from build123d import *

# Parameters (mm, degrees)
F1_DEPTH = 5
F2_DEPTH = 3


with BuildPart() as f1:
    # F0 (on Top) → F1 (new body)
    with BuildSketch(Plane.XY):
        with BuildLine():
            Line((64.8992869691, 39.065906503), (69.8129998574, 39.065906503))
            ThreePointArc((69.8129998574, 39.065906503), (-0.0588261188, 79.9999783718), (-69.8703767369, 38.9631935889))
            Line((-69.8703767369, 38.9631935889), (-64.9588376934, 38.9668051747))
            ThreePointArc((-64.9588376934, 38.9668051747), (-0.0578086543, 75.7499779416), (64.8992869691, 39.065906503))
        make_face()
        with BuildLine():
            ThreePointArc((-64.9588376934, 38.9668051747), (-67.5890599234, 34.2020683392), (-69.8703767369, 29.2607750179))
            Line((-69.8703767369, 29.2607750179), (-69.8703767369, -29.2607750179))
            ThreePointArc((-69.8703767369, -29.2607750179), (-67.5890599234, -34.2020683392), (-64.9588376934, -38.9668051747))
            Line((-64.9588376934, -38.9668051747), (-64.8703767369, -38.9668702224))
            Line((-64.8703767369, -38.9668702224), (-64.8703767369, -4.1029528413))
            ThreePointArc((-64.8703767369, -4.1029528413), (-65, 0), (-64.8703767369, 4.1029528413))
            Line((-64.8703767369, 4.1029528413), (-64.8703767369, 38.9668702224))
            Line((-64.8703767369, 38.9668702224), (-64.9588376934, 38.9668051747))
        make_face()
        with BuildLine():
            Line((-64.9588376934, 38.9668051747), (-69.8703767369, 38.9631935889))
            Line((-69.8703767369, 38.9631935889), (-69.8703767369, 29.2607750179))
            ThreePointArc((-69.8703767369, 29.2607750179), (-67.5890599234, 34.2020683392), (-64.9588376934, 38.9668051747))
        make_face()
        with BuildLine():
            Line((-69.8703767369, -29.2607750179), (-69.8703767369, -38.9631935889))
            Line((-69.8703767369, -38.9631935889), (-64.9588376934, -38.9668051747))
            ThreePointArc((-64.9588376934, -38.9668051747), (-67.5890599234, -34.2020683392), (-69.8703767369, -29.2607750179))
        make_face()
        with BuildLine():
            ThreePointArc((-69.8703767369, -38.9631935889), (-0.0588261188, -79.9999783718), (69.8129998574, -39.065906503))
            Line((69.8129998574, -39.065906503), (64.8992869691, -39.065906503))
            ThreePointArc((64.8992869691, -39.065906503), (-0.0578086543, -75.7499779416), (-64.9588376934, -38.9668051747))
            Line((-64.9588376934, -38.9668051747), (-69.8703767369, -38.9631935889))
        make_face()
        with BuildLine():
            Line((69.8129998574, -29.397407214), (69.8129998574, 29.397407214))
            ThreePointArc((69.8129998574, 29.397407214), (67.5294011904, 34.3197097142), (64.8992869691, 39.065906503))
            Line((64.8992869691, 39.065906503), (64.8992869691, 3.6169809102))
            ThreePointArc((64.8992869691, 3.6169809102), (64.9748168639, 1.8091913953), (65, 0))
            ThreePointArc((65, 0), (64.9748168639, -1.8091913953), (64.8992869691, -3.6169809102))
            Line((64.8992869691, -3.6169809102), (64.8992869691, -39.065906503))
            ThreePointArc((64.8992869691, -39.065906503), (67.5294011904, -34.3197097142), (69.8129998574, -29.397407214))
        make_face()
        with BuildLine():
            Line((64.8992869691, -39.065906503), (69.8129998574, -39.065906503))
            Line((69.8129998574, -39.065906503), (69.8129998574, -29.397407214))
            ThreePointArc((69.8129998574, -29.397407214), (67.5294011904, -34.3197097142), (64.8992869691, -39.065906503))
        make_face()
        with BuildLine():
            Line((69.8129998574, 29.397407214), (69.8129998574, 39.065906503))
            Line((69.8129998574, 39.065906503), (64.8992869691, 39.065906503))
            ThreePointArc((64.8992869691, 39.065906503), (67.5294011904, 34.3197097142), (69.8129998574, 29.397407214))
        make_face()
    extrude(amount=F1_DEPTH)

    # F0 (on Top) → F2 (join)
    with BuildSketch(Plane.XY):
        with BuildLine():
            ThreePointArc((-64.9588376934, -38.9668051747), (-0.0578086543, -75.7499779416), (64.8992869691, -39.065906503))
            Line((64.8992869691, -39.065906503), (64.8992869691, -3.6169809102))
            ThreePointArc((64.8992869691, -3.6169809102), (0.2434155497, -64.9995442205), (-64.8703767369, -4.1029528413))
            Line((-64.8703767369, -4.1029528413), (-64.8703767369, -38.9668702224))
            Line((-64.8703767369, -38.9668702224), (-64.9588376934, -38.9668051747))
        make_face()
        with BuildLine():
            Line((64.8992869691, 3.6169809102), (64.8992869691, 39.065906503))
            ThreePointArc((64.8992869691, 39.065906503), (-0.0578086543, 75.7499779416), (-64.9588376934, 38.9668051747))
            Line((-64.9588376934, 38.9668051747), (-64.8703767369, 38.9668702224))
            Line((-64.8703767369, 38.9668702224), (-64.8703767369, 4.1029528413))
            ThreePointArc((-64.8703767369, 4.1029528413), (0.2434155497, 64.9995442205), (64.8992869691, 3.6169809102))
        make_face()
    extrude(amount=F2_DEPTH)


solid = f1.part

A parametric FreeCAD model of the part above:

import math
import FreeCAD as App
import Part
import Sketcher
from FreeCAD import Vector

doc = App.newDocument("Part")
body = doc.addObject("PartDesign::Body", "Body")

sketch1 = body.newObject("Sketcher::SketchObject", "Sketch")
sketch1.AttachmentSupport = (doc.getObject("XY_Plane"), [""])
sketch1.MapMode = "FlatFace"
sketch1.addGeometry([
    Part.LineSegment(Vector(69.813, -39.065907, 0), Vector(69.813, 39.065907, 0)),
    Part.ArcOfCircle(Part.Circle(Vector(0, 0, 0), Vector(0, 0, 1), 80), math.radians(29.230471), math.radians(150.853791)),
    Part.LineSegment(Vector(-69.870377, 38.963194, 0), Vector(-69.870377, -38.963194, 0)),
    Part.ArcOfCircle(Part.Circle(Vector(0, 0, 0), Vector(0, 0, 1), 80), math.radians(-150.853791), math.radians(-29.230471)),
    Part.ArcOfCircle(Part.Circle(Vector(0, 0, 0), Vector(0, 0, 1), 75.75), math.radians(31.045696), math.radians(149.041755)),
    Part.LineSegment(Vector(64.899287, 39.065907, 0), Vector(64.899287, 3.616981, 0)),
    Part.ArcOfCircle(Part.Circle(Vector(0, 0, 0), Vector(0, 0, 1), 65), math.radians(0), math.radians(3.189921)),
    Part.ArcOfCircle(Part.Circle(Vector(0, 0, 0), Vector(0, 0, 1), 65), math.radians(-3.189921), math.radians(0)),
    Part.LineSegment(Vector(64.899287, -3.616981, 0), Vector(64.899287, -39.065907, 0)),
    Part.ArcOfCircle(Part.Circle(Vector(0, 0, 0), Vector(0, 0, 1), 75.75), math.radians(-149.041755), math.radians(-31.045696)),
    Part.LineSegment(Vector(-64.958838, -38.966805, 0), Vector(-64.870377, -38.96687, 0)),
    Part.LineSegment(Vector(-64.870377, -38.96687, 0), Vector(-64.870377, -4.102953, 0)),
    Part.ArcOfCircle(Part.Circle(Vector(0, 0, 0), Vector(0, 0, 1), 65), math.radians(176.38095), math.radians(183.61905)),
    Part.LineSegment(Vector(-64.870377, 4.102953, 0), Vector(-64.870377, 38.96687, 0)),
    Part.LineSegment(Vector(-64.870377, 38.96687, 0), Vector(-64.958838, 38.966805, 0)),
], False)
sketch1.addConstraint([
    Sketcher.Constraint("Coincident", 0, 2, 1, 1),
    Sketcher.Constraint("Coincident", 1, 2, 2, 1),
    Sketcher.Constraint("Coincident", 2, 2, 3, 1),
    Sketcher.Constraint("Coincident", 3, 2, 0, 1),
    Sketcher.Constraint("Coincident", 4, 1, 5, 1),
    Sketcher.Constraint("Coincident", 5, 2, 6, 2),
    Sketcher.Constraint("Tangent", 6, 1, 7, 2),
    Sketcher.Constraint("Coincident", 7, 1, 8, 1),
    Sketcher.Constraint("Coincident", 8, 2, 9, 2),
    Sketcher.Constraint("Coincident", 9, 1, 10, 1),
    Sketcher.Constraint("Coincident", 10, 2, 11, 1),
    Sketcher.Constraint("Coincident", 11, 2, 12, 2),
    Sketcher.Constraint("Coincident", 12, 1, 13, 1),
    Sketcher.Constraint("Coincident", 13, 2, 14, 1),
    Sketcher.Constraint("Coincident", 14, 2, 4, 2),
    Sketcher.Constraint("Vertical", 0),
    Sketcher.Constraint("Vertical", 2),
    Sketcher.Constraint("Vertical", 5),
    Sketcher.Constraint("Vertical", 8),
    Sketcher.Constraint("Vertical", 11),
    Sketcher.Constraint("Vertical", 13),
    Sketcher.Constraint("Coincident", 1, 3, -1, 1),
    Sketcher.Constraint("Coincident", 3, 3, -1, 1),
    Sketcher.Constraint("Coincident", 4, 3, -1, 1),
    Sketcher.Constraint("Coincident", 6, 3, -1, 1),
    Sketcher.Constraint("Coincident", 9, 3, -1, 1),
    Sketcher.Constraint("Coincident", 12, 3, -1, 1),
    Sketcher.Constraint("Equal", 1, 3),
    Sketcher.Constraint("Equal", 6, 7),
    Sketcher.Constraint("Equal", 4, 9),
    Sketcher.Constraint("Equal", 7, 12),
    Sketcher.Constraint("Symmetric", 10, 2, 13, 2, -1),
    Sketcher.Constraint("PointOnObject", 6, 1, -1),
    Sketcher.Constraint("Horizontal", 0, 2, 4, 1),
    Sketcher.Constraint("Vertical", 5, 2, 7, 1),
    Sketcher.Constraint("Vertical", 9, 1, 14, 2),
    Sketcher.Constraint("Radius", 1, 80.0),
    Sketcher.Constraint("Radius", 6, 65.0),
    Sketcher.Constraint("Radius", 4, 75.75),
    Sketcher.Constraint("DistanceX", 2, 2, 10, 2, 5.0),
    Sketcher.Constraint("DistanceX", -1, 1, 0, 2, 69.813),
    Sketcher.Constraint("Distance", 10, 0.088461),
    Sketcher.Constraint("DistanceY", 2, 2, 2, 1, 77.926387),
    Sketcher.Constraint("DistanceY", 11, 1, 11, 2, 34.863917),
])
pad1 = body.newObject("PartDesign::Pad", "Pad")
pad1.Profile = sketch1
pad1.Length = 5

sketch2 = body.newObject("Sketcher::SketchObject", "Sketch001")
sketch2.AttachmentSupport = (doc.getObject("XY_Plane"), [""])
sketch2.MapMode = "FlatFace"
sketch2.addGeometry([
    Part.ArcOfCircle(Part.Circle(Vector(0, 0, 0), Vector(0, 0, 1), 75.75), math.radians(-149.041755), math.radians(-31.045696)),
    Part.LineSegment(Vector(64.899287, -39.065907, 0), Vector(64.899287, -3.616981, 0)),
    Part.ArcOfCircle(Part.Circle(Vector(0, 0, 0), Vector(0, 0, 1), 65), math.radians(-176.38095), math.radians(-3.189921)),
    Part.LineSegment(Vector(-64.870377, -4.102953, 0), Vector(-64.870377, -38.96687, 0)),
    Part.LineSegment(Vector(-64.870377, -38.96687, 0), Vector(-64.958838, -38.966805, 0)),
    Part.LineSegment(Vector(64.899287, 3.616981, 0), Vector(64.899287, 39.065907, 0)),
    Part.ArcOfCircle(Part.Circle(Vector(0, 0, 0), Vector(0, 0, 1), 75.75), math.radians(31.045696), math.radians(149.041755)),
    Part.LineSegment(Vector(-64.958838, 38.966805, 0), Vector(-64.870377, 38.96687, 0)),
    Part.LineSegment(Vector(-64.870377, 38.96687, 0), Vector(-64.870377, 4.102953, 0)),
    Part.ArcOfCircle(Part.Circle(Vector(0, 0, 0), Vector(0, 0, 1), 65), math.radians(3.189921), math.radians(176.38095)),
], False)
sketch2.addConstraint([
    Sketcher.Constraint("Coincident", 0, 2, 1, 1),
    Sketcher.Constraint("Coincident", 1, 2, 2, 2),
    Sketcher.Constraint("Coincident", 2, 1, 3, 1),
    Sketcher.Constraint("Coincident", 3, 2, 4, 1),
    Sketcher.Constraint("Coincident", 4, 2, 0, 1),
    Sketcher.Constraint("Coincident", 5, 2, 6, 1),
    Sketcher.Constraint("Coincident", 6, 2, 7, 1),
    Sketcher.Constraint("Coincident", 7, 2, 8, 1),
    Sketcher.Constraint("Coincident", 8, 2, 9, 2),
    Sketcher.Constraint("Coincident", 9, 1, 5, 1),
    Sketcher.Constraint("Vertical", 1),
    Sketcher.Constraint("Vertical", 3),
    Sketcher.Constraint("Vertical", 5),
    Sketcher.Constraint("Vertical", 8),
    Sketcher.Constraint("Coincident", 0, 3, -1, 1),
    Sketcher.Constraint("Coincident", 2, 3, -1, 1),
    Sketcher.Constraint("Coincident", 6, 3, -1, 1),
    Sketcher.Constraint("Coincident", 9, 3, -1, 1),
    Sketcher.Constraint("Equal", 0, 6),
    Sketcher.Constraint("Equal", 2, 9),
    Sketcher.Constraint("Symmetric", 3, 2, 7, 2, -1),
    Sketcher.Constraint("Vertical", 1, 2, 5, 2),
    Sketcher.Constraint("Vertical", 4, 2, 6, 2),
    Sketcher.Constraint("Radius", 2, 65.0),
    Sketcher.Constraint("Radius", 0, 75.75),
    Sketcher.Constraint("Distance", 4, 0.088461),
    Sketcher.Constraint("DistanceY", 1, 1, 1, 2, 35.448926),
    Sketcher.Constraint("DistanceY", 3, 2, 3, 1, 34.863917),
    Sketcher.Constraint("DistanceY", 3, 2, -1, 1, 38.96687),
])
pad2 = body.newObject("PartDesign::Pad", "Pad001")
pad2.Profile = sketch2
pad2.Length = 3

doc.recompute()
